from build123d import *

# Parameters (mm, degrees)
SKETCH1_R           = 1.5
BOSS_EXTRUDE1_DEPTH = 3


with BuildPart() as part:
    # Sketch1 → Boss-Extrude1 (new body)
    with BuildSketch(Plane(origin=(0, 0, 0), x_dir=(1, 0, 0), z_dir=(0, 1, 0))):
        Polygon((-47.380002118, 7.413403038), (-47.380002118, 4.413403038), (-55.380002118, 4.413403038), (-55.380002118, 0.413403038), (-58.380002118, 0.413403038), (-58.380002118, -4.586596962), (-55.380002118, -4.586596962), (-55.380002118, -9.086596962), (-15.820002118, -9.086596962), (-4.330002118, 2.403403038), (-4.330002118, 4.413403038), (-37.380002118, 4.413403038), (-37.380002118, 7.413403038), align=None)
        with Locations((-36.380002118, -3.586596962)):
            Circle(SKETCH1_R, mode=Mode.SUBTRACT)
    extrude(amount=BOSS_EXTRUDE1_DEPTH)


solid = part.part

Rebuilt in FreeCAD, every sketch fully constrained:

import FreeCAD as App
import Part
import Sketcher

V = App.Vector
Q = App.Units.Quantity

doc = App.newDocument("Part")
body = doc.addObject("PartDesign::Body", "Body")

# Sketch on XZ plane
sketch1 = body.newObject("Sketcher::SketchObject", "Sketch")
sketch1.AttachmentSupport = (doc.getObject("XZ_Plane"), [""])
sketch1.MapMode = "FlatFace"
sketch1.addGeometry([
    Part.LineSegment(V(-47.380002, -7.413403, 0), V(-47.380002, -4.413403, 0)),  # 0
    Part.LineSegment(V(-47.380002, -4.413403, 0), V(-55.380002, -4.413403, 0)),  # 1
    Part.LineSegment(V(-55.380002, -4.413403, 0), V(-55.380002, -0.413403, 0)),  # 2
    Part.LineSegment(V(-55.380002, -0.413403, 0), V(-58.380002, -0.413403, 0)),  # 3
    Part.LineSegment(V(-58.380002, -0.413403, 0), V(-58.380002, 4.586597, 0)),  # 4
    Part.LineSegment(V(-58.380002, 4.586597, 0), V(-55.380002, 4.586597, 0)),  # 5
    Part.LineSegment(V(-55.380002, 4.586597, 0), V(-55.380002, 9.086597, 0)),  # 6
    Part.LineSegment(V(-55.380002, 9.086597, 0), V(-15.820002, 9.086597, 0)),  # 7
    Part.LineSegment(V(-15.820002, 9.086597, 0), V(-4.330002, -2.403403, 0)),  # 8
    Part.LineSegment(V(-4.330002, -2.403403, 0), V(-4.330002, -4.413403, 0)),  # 9
    Part.LineSegment(V(-4.330002, -4.413403, 0), V(-37.380002, -4.413403, 0)),  # 10
    Part.LineSegment(V(-37.380002, -4.413403, 0), V(-37.380002, -7.413403, 0)),  # 11
    Part.LineSegment(V(-37.380002, -7.413403, 0), V(-47.380002, -7.413403, 0)),  # 12
    Part.Circle(V(-36.380002, 3.586597, 0), V(0, 0, 1), 1.5),  # 13
], False)
sketch1.addConstraint([
    Sketcher.Constraint("Coincident", 0, 2, 1, 1),
    Sketcher.Constraint("Coincident", 1, 2, 2, 1),
    Sketcher.Constraint("Coincident", 2, 2, 3, 1),
    Sketcher.Constraint("Coincident", 3, 2, 4, 1),
    Sketcher.Constraint("Coincident", 4, 2, 5, 1),
    Sketcher.Constraint("Coincident", 5, 2, 6, 1),
    Sketcher.Constraint("Coincident", 6, 2, 7, 1),
    Sketcher.Constraint("Coincident", 7, 2, 8, 1),
    Sketcher.Constraint("Coincident", 8, 2, 9, 1),
    Sketcher.Constraint("Coincident", 9, 2, 10, 1),
    Sketcher.Constraint("Coincident", 10, 2, 11, 1),
    Sketcher.Constraint("Coincident", 11, 2, 12, 1),
    Sketcher.Constraint("Coincident", 12, 2, 0, 1),
    Sketcher.Constraint("Vertical", 0),
    Sketcher.Constraint("Horizontal", 1),
    Sketcher.Constraint("Vertical", 2),
    Sketcher.Constraint("Horizontal", 3),
    Sketcher.Constraint("Vertical", 4),
    Sketcher.Constraint("Horizontal", 5),
    Sketcher.Constraint("Vertical", 6),
    Sketcher.Constraint("Horizontal", 7),
    Sketcher.Constraint("Vertical", 9),
    Sketcher.Constraint("Horizontal", 10),
    Sketcher.Constraint("Vertical", 11),
    Sketcher.Constraint("Horizontal", 12),
    Sketcher.Constraint("Horizontal", 1, 2, 9, 2),
    Sketcher.Constraint("Vertical", 2, 2, 5, 2),
    Sketcher.Constraint("Equal", 5, 0),
    Sketcher.Constraint("Diameter", 13, Q("3 mm")),
    Sketcher.Constraint("DistanceX", 1, 2, 1, 1, Q("8 mm")),
    Sketcher.Constraint("DistanceX", 3, 2, 3, 1, Q("3 mm")),
    Sketcher.Constraint("DistanceX", 12, 2, 12, 1, Q("10 mm")),
    Sketcher.Constraint("DistanceY", 2, 1, 2, 2, Q("4 mm")),
    Sketcher.Constraint("DistanceY", 4, 1, 4, 2, Q("5 mm")),
    Sketcher.Constraint("Angle", 8, Q("-45 deg")),
    Sketcher.Constraint("DistanceY", 6, 1, 6, 2, Q("4.5 mm")),
    Sketcher.Constraint("DistanceX", 0, 2, 13, 3, Q("11 mm")),
    Sketcher.Constraint("DistanceY", 0, 2, 13, 3, Q("8 mm")),
    Sketcher.Constraint("DistanceX", 7, 1, 7, 2, Q("39.56 mm")),
    Sketcher.Constraint("DistanceX", 10, 2, 10, 1, Q("33.05 mm")),
    Sketcher.Constraint("DistanceX", 13, 3, -1, 1, Q("36.380002 mm")),
    Sketcher.Constraint("DistanceY", -1, 1, 13, 3, Q("3.586597 mm")),
])
pad1 = body.newObject("PartDesign::Pad", "Pad")
pad1.Profile = sketch1
pad1.Length = 3
pad1.Reversed = True

doc.recompute()
